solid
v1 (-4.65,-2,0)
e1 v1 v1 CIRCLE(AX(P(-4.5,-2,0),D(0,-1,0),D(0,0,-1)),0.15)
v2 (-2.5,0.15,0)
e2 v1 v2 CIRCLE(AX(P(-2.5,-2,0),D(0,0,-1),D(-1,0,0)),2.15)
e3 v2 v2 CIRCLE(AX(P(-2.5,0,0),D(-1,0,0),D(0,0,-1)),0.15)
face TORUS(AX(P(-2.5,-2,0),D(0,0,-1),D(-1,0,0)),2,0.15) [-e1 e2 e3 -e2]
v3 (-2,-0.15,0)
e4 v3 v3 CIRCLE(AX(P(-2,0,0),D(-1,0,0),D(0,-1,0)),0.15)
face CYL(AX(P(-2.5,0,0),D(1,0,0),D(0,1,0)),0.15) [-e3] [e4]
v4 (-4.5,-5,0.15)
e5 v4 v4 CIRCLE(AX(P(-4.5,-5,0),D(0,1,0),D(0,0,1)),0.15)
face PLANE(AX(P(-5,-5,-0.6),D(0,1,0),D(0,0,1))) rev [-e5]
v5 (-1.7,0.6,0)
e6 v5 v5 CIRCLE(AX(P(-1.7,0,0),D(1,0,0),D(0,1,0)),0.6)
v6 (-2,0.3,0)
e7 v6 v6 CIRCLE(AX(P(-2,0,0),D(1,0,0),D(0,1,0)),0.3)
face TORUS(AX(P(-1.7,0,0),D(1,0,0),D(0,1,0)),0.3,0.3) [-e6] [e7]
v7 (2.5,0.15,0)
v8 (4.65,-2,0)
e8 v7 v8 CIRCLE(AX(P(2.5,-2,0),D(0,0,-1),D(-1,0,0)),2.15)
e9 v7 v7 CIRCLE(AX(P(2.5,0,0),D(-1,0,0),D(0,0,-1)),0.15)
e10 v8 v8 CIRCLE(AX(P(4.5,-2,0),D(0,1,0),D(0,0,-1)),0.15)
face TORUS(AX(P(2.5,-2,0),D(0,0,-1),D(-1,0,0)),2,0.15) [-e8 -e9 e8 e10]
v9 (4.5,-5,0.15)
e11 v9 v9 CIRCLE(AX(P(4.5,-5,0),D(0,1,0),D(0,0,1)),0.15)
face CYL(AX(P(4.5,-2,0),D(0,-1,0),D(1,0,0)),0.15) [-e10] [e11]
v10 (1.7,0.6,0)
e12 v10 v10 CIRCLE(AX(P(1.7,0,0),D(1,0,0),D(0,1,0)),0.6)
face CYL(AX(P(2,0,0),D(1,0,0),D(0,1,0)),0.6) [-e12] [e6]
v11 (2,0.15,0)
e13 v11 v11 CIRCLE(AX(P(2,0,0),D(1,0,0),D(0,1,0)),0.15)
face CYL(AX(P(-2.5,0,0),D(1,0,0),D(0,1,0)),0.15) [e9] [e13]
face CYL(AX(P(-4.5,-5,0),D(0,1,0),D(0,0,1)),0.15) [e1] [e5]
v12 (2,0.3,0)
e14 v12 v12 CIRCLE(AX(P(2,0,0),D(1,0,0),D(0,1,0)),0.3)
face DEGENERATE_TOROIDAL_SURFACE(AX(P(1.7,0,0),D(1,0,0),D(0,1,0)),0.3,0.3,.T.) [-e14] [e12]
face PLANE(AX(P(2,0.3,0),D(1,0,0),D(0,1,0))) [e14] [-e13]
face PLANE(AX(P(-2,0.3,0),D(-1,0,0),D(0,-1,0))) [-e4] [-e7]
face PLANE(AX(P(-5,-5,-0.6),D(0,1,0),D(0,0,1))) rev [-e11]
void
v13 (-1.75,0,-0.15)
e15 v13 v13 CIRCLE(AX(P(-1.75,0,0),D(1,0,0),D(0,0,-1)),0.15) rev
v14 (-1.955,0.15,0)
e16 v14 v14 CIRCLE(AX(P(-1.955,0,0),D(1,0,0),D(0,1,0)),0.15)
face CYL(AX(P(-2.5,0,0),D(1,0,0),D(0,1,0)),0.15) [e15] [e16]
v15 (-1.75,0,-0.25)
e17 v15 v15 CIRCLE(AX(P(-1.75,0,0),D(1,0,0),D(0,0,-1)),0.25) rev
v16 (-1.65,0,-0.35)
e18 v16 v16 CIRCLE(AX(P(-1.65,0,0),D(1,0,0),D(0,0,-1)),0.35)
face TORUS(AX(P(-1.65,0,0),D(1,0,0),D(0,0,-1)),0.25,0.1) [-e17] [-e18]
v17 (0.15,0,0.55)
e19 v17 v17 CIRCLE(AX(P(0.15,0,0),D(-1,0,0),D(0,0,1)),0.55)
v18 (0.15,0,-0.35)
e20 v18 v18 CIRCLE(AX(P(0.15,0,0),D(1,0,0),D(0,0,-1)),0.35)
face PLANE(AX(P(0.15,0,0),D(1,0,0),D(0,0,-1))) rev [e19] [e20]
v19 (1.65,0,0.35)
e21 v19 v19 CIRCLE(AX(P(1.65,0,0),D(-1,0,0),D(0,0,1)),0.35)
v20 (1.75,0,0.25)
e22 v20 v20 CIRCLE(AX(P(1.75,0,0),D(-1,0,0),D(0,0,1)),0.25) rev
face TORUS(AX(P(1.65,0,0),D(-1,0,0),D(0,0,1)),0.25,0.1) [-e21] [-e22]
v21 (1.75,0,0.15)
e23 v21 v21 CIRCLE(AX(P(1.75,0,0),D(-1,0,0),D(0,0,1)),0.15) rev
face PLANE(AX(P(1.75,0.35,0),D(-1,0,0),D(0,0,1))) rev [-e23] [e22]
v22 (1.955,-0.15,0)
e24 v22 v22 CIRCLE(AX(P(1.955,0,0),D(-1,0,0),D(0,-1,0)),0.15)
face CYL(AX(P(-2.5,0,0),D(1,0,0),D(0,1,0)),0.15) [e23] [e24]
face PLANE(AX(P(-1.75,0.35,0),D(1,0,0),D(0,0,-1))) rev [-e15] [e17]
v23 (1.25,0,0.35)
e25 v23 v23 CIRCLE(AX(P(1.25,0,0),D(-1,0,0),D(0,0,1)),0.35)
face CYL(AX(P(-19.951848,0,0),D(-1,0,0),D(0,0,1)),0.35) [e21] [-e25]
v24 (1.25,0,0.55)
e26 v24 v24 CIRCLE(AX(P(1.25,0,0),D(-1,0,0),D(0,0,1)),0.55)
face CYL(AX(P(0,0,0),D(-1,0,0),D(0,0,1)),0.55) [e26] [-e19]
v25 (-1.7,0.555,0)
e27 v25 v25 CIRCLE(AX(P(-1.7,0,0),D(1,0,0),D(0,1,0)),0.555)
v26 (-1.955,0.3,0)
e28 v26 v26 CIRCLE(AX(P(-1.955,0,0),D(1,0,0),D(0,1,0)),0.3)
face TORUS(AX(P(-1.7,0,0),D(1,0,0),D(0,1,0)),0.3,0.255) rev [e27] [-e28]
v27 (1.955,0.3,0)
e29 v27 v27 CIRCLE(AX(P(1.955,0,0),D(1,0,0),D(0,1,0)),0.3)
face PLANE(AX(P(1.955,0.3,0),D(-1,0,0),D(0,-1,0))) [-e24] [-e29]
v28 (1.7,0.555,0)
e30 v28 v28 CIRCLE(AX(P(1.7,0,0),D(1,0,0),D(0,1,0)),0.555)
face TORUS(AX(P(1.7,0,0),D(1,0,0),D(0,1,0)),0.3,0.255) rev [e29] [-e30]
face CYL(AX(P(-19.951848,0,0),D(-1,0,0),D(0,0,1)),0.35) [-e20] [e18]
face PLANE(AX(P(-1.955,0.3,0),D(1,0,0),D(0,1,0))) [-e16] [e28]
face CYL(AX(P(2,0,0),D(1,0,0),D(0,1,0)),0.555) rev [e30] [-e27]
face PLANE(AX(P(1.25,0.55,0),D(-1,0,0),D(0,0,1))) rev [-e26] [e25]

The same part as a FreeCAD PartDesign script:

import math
import FreeCAD as App
import Part
import Sketcher
Q = App.Units.Quantity


def edges_at(feature, points):
    """Names of the edges that pass closest to the given points."""
    edges = feature.Shape.Edges
    near = lambda p: min(range(len(edges)), key=lambda i: edges[i].distToShape(Part.Vertex(*p))[0])
    return sorted({f"Edge{near(p) + 1}" for p in points})


def add_polygon(sketch, points):
    """Adds a closed chain of lines whose ends are joined by coincident constraints."""
    first, n = sketch.GeometryCount, len(points)
    for a, b in zip(points, points[1:] + points[:1]):
        sketch.addGeometry(Part.LineSegment(App.Vector(*a, 0), App.Vector(*b, 0)), False)
    for i in range(n):
        sketch.addConstraint(Sketcher.Constraint("Coincident", first + i, 2, first + (i + 1) % n, 1))

doc = App.newDocument("Part")
params = doc.addObject("Spreadsheet::Sheet", "Params")
for row, (alias, value) in enumerate([
    ("sketch1_width", "3.5 mm"),
    ("sketch1_height", "0.35 mm"),
    ("revolution_angle", "360 deg"),
    ("fillet_radius", "0.1 mm"),
    ("sketch2_width", "1.1 mm"),
    ("sketch2_height", "0.55 mm"),
    ("revolution2_angle", "360 deg"),
    ("sketch3_diameter", "0.3 mm"),
    ("sketch4_radius", "2 mm"),
    ("sketch4_width", "5 mm"),
    ("sketch4_height", "3 mm"),
    ("sketch5_radius", "0.3 mm"),
    ("sketch5_width", "3.4 mm"),
    ("sketch5_height", "0.3 mm"),
    ("revolution3_angle", "360 deg"),
    ("sketch6_width", "10 mm"),
    ("sketch6_height", "2.5 mm"),
], start=1):
    params.set(f"A{row}", alias)
    params.set(f"B{row}", "=" + value)
    params.setAlias(f"B{row}", alias)

body = doc.addObject("PartDesign::Body", "Body")

sketch1 = doc.addObject("Sketcher::SketchObject", "Sketch")
body.addObject(sketch1)
sketch1.AttachmentSupport = (doc.XY_Plane, [""])
sketch1.MapMode = "FlatFace"
add_polygon(sketch1, [(-1.75, 0.35), (-1.75, 0), (1.75, 0), (1.75, 0.35)])
sketch1.addConstraint([
    Sketcher.Constraint("Vertical", 0),
    Sketcher.Constraint("Horizontal", 1),
    Sketcher.Constraint("Vertical", 2),
    Sketcher.Constraint("Horizontal", 3),
    Sketcher.Constraint("Symmetric", 0, 2, 1, 2, -1, 1),
    Sketcher.Constraint("DistanceX", 1, 1, 1, 2, Q("3.5 mm")),
    Sketcher.Constraint("DistanceY", 0, 2, 0, 1, Q("0.35 mm")),
])
sketch1.setExpression("Constraints[9]", "Params.sketch1_width")
sketch1.setExpression("Constraints[10]", "Params.sketch1_height")
revolution = doc.addObject("PartDesign::Revolution", "Revolution")
body.addObject(revolution)
revolution.Profile = sketch1
revolution.ReferenceAxis = (sketch1, ["H_Axis"])
revolution.setExpression("Angle", "Params.revolution_angle")
doc.recompute()

fillet = doc.addObject("PartDesign::Fillet", "Fillet")
body.addObject(fillet)
fillet.Base = (revolution, edges_at(revolution, [(1.75, 0, -0.35), (-1.75, 0, -0.35)]))
fillet.setExpression("Radius", "Params.fillet_radius")

sketch2 = doc.addObject("Sketcher::SketchObject", "Sketch001")
body.addObject(sketch2)
sketch2.AttachmentSupport = (doc.XY_Plane, [""])
sketch2.MapMode = "FlatFace"
add_polygon(sketch2, [(0.1, 0.6), (0.1, 0), (1.2, 0), (1.2, 0.6)])
sketch2.addConstraint([
    Sketcher.Constraint("Vertical", 0),
    Sketcher.Constraint("Horizontal", 1),
    Sketcher.Constraint("Vertical", 2),
    Sketcher.Constraint("Horizontal", 3),
    Sketcher.Constraint("PointOnObject", 0, 2, -1),
    Sketcher.Constraint("DistanceX", 1, 1, 1, 2, Q("1.1 mm")),
    Sketcher.Constraint("DistanceY", 0, 2, 0, 1, Q("0.55 mm")),
    Sketcher.Constraint("DistanceX", -1, 1, 0, 2, Q("0.15 mm")),
])
sketch2.setExpression("Constraints[9]", "Params.sketch2_width")
sketch2.setExpression("Constraints[10]", "Params.sketch2_height")
revolution2 = doc.addObject("PartDesign::Revolution", "Revolution001")
body.addObject(revolution2)
revolution2.Profile = sketch2
revolution2.ReferenceAxis = (sketch2, ["H_Axis"])
revolution2.setExpression("Angle", "Params.revolution2_angle")

sketch3 = doc.addObject("Sketcher::SketchObject", "Sketch002")
body.addObject(sketch3)
sketch3.AttachmentSupport = (doc.YZ_Plane, [""])
sketch3.MapMode = "FlatFace"
sketch3.addGeometry(Part.Circle(App.Vector(-7, 0, 0), App.Vector(0, 0, 1), 0.15), False)
sketch3.addConstraint([
    Sketcher.Constraint("PointOnObject", 0, 3, -1),
    Sketcher.Constraint("Diameter", 0, Q("0.3 mm")),
    Sketcher.Constraint("DistanceX", 0, 3, -1, 1, Q("7 mm")),
])
sketch3.setExpression("Constraints[1]", "Params.sketch3_diameter")

sketch4 = doc.addObject("Sketcher::SketchObject", "Sketch003")
body.addObject(sketch4)
sketch4.AttachmentSupport = (doc.XY_Plane, [""])
sketch4.MapMode = "FlatFace"
sketch4.addGeometry([
    Part.ArcOfCircle(Part.Circle(App.Vector(-2.5, -5, 0), App.Vector(0, 0, 1), 2), math.radians(-180), math.radians(-90)),
    Part.LineSegment(App.Vector(-4.5, -5, 0), App.Vector(-4.5, -2, 0)),
    Part.ArcOfCircle(Part.Circle(App.Vector(-2.5, -2, 0), App.Vector(0, 0, 1), 2), math.radians(90), math.radians(180)),
    Part.LineSegment(App.Vector(-2.5, 0, 0), App.Vector(2.5, 0, 0)),
    Part.ArcOfCircle(Part.Circle(App.Vector(2.5, -2, 0), App.Vector(0, 0, 1), 2), math.radians(0), math.radians(90)),
    Part.LineSegment(App.Vector(4.5, -2, 0), App.Vector(4.5, -5, 0)),
    Part.ArcOfCircle(Part.Circle(App.Vector(2.5, -5, 0), App.Vector(0, 0, 1), 2), math.radians(-90), math.radians(0)),
    Part.LineSegment(App.Vector(2.5, -7, 0), App.Vector(-2.5, -7, 0)),
], False)
sketch4.addConstraint([
    Sketcher.Constraint("Tangent", 0, 1, 1, 1),
    Sketcher.Constraint("Tangent", 1, 2, 2, 2),
    Sketcher.Constraint("Tangent", 2, 1, 3, 1),
    Sketcher.Constraint("Tangent", 3, 2, 4, 2),
    Sketcher.Constraint("Tangent", 4, 1, 5, 1),
    Sketcher.Constraint("Tangent", 5, 2, 6, 2),
    Sketcher.Constraint("Tangent", 6, 1, 7, 1),
    Sketcher.Constraint("Tangent", 7, 2, 0, 2),
    Sketcher.Constraint("Vertical", 1),
    Sketcher.Constraint("Horizontal", 3),
    Sketcher.Constraint("Vertical", 5),
    Sketcher.Constraint("Horizontal", 7),
    Sketcher.Constraint("Equal", 0, 2),
    Sketcher.Constraint("Equal", 2, 4),
    Sketcher.Constraint("Equal", 4, 6),
    Sketcher.Constraint("Symmetric", 2, 1, 3, 2, -1, 1),
    Sketcher.Constraint("Radius", 0, Q("2 mm")),
    Sketcher.Constraint("DistanceX", 3, 1, 3, 2, Q("5 mm")),
    Sketcher.Constraint("DistanceY", 1, 1, 1, 2, Q("3 mm")),
])
sketch4.setExpression("Constraints[16]", "Params.sketch4_radius")
sketch4.setExpression("Constraints[17]", "Params.sketch4_width")
sketch4.setExpression("Constraints[18]", "Params.sketch4_height")
doc.recompute()

additivepipe = doc.addObject("PartDesign::AdditivePipe", "AdditivePipe")
body.addObject(additivepipe)
additivepipe.Profile = sketch3
additivepipe.Spine = (sketch4, ["Edge1", "Edge2", "Edge3", "Edge4", "Edge5", "Edge6", "Edge7", "Edge8"])

sketch5 = doc.addObject("Sketcher::SketchObject", "Sketch004")
body.addObject(sketch5)
sketch5.AttachmentSupport = (doc.XY_Plane, [""])
sketch5.MapMode = "FlatFace"
sketch5.addGeometry([
    Part.LineSegment(App.Vector(1.7, 0.6, 0), App.Vector(-1.7, 0.6, 0)),
    Part.ArcOfCircle(Part.Circle(App.Vector(-1.7, 0.3, 0), App.Vector(0, 0, 1), 0.3), math.radians(90), math.radians(180)),
    Part.LineSegment(App.Vector(-2, 0.3, 0), App.Vector(-2, 0, 0)),
    Part.LineSegment(App.Vector(-2, 0, 0), App.Vector(-1.955, 0, 0)),
    Part.LineSegment(App.Vector(-1.955, 0, 0), App.Vector(-1.955, 0.3, 0)),
    Part.ArcOfCircle(Part.Circle(App.Vector(-1.7, 0.3, 0), App.Vector(0, 0, 1), 0.255), math.radians(90), math.radians(180)),
    Part.LineSegment(App.Vector(-1.7, 0.555, 0), App.Vector(1.7, 0.555, 0)),
    Part.ArcOfCircle(Part.Circle(App.Vector(1.7, 0.3, 0), App.Vector(0, 0, 1), 0.255), math.radians(0), math.radians(90)),
    Part.LineSegment(App.Vector(1.955, 0.3, 0), App.Vector(1.955, 0, 0)),
    Part.LineSegment(App.Vector(1.955, 0, 0), App.Vector(2, 0, 0)),
    Part.LineSegment(App.Vector(2, 0, 0), App.Vector(2, 0.3, 0)),
    Part.ArcOfCircle(Part.Circle(App.Vector(1.7, 0.3, 0), App.Vector(0, 0, 1), 0.3), math.radians(0), math.radians(90)),
], False)
sketch5.addConstraint([
    Sketcher.Constraint("Tangent", 0, 2, 1, 1),
    Sketcher.Constraint("Tangent", 1, 2, 2, 1),
    Sketcher.Constraint("Coincident", 2, 2, 3, 1),
    Sketcher.Constraint("Coincident", 3, 2, 4, 1),
    Sketcher.Constraint("Tangent", 4, 2, 5, 2),
    Sketcher.Constraint("Tangent", 5, 1, 6, 1),
    Sketcher.Constraint("Tangent", 6, 2, 7, 2),
    Sketcher.Constraint("Tangent", 7, 1, 8, 1),
    Sketcher.Constraint("Coincident", 8, 2, 9, 1),
    Sketcher.Constraint("Coincident", 9, 2, 10, 1),
    Sketcher.Constraint("Tangent", 10, 2, 11, 1),
    Sketcher.Constraint("Tangent", 11, 2, 0, 1),
    Sketcher.Constraint("Horizontal", 0),
    Sketcher.Constraint("Vertical", 2),
    Sketcher.Constraint("Horizontal", 3),
    Sketcher.Constraint("Vertical", 4),
    Sketcher.Constraint("Horizontal", 6),
    Sketcher.Constraint("Vertical", 8),
    Sketcher.Constraint("Horizontal", 9),
    Sketcher.Constraint("Vertical", 10),
    Sketcher.Constraint("Coincident", 5, 3, 1, 3),
    Sketcher.Constraint("Coincident", 11, 3, 7, 3),
    Sketcher.Constraint("Equal", 5, 7),
    Sketcher.Constraint("Symmetric", 3, 2, 8, 2, -1, 1),
    Sketcher.Constraint("PointOnObject", 2, 2, -1),
    Sketcher.Constraint("Radius", 1, Q("0.3 mm")),
    Sketcher.Constraint("DistanceX", 0, 2, 0, 1, Q("3.4 mm")),
    Sketcher.Constraint("DistanceY", 2, 2, 2, 1, Q("0.3 mm")),
    Sketcher.Constraint("Radius", 5, Q("0.255 mm")),
])
sketch5.setExpression("Constraints[25]", "Params.sketch5_radius")
sketch5.setExpression("Constraints[26]", "Params.sketch5_width")
sketch5.setExpression("Constraints[27]", "Params.sketch5_height")
revolution3 = doc.addObject("PartDesign::Revolution", "Revolution002")
body.addObject(revolution3)
revolution3.Profile = sketch5
revolution3.ReferenceAxis = (sketch5, ["H_Axis"])
revolution3.setExpression("Angle", "Params.revolution3_angle")

sketch6 = doc.addObject("Sketcher::SketchObject", "Sketch005")
body.addObject(sketch6)
sketch6.AttachmentSupport = (doc.XY_Plane, [""])
sketch6.MapMode = "FlatFace"
add_polygon(sketch6, [(-5, -5), (-5, -7.5), (5, -7.5), (5, -5)])
sketch6.addConstraint([
    Sketcher.Constraint("Vertical", 0),
    Sketcher.Constraint("Horizontal", 1),
    Sketcher.Constraint("Vertical", 2),
    Sketcher.Constraint("Horizontal", 3),
    Sketcher.Constraint("DistanceX", 1, 1, 1, 2, Q("10 mm")),
    Sketcher.Constraint("DistanceY", 0, 2, 0, 1, Q("2.5 mm")),
    Sketcher.Constraint("DistanceX", 0, 2, -1, 1, Q("5 mm")),
    Sketcher.Constraint("DistanceY", 2, 2, -1, 1, Q("5 mm")),
])
sketch6.setExpression("Constraints[8]", "Params.sketch6_width")
sketch6.setExpression("Constraints[9]", "Params.sketch6_height")
pocket1 = doc.addObject("PartDesign::Pocket", "Pocket")
body.addObject(pocket1)
pocket1.Profile = sketch6
pocket1.Type = "ThroughAll"
pocket1.Midplane = True

doc.recompute()
